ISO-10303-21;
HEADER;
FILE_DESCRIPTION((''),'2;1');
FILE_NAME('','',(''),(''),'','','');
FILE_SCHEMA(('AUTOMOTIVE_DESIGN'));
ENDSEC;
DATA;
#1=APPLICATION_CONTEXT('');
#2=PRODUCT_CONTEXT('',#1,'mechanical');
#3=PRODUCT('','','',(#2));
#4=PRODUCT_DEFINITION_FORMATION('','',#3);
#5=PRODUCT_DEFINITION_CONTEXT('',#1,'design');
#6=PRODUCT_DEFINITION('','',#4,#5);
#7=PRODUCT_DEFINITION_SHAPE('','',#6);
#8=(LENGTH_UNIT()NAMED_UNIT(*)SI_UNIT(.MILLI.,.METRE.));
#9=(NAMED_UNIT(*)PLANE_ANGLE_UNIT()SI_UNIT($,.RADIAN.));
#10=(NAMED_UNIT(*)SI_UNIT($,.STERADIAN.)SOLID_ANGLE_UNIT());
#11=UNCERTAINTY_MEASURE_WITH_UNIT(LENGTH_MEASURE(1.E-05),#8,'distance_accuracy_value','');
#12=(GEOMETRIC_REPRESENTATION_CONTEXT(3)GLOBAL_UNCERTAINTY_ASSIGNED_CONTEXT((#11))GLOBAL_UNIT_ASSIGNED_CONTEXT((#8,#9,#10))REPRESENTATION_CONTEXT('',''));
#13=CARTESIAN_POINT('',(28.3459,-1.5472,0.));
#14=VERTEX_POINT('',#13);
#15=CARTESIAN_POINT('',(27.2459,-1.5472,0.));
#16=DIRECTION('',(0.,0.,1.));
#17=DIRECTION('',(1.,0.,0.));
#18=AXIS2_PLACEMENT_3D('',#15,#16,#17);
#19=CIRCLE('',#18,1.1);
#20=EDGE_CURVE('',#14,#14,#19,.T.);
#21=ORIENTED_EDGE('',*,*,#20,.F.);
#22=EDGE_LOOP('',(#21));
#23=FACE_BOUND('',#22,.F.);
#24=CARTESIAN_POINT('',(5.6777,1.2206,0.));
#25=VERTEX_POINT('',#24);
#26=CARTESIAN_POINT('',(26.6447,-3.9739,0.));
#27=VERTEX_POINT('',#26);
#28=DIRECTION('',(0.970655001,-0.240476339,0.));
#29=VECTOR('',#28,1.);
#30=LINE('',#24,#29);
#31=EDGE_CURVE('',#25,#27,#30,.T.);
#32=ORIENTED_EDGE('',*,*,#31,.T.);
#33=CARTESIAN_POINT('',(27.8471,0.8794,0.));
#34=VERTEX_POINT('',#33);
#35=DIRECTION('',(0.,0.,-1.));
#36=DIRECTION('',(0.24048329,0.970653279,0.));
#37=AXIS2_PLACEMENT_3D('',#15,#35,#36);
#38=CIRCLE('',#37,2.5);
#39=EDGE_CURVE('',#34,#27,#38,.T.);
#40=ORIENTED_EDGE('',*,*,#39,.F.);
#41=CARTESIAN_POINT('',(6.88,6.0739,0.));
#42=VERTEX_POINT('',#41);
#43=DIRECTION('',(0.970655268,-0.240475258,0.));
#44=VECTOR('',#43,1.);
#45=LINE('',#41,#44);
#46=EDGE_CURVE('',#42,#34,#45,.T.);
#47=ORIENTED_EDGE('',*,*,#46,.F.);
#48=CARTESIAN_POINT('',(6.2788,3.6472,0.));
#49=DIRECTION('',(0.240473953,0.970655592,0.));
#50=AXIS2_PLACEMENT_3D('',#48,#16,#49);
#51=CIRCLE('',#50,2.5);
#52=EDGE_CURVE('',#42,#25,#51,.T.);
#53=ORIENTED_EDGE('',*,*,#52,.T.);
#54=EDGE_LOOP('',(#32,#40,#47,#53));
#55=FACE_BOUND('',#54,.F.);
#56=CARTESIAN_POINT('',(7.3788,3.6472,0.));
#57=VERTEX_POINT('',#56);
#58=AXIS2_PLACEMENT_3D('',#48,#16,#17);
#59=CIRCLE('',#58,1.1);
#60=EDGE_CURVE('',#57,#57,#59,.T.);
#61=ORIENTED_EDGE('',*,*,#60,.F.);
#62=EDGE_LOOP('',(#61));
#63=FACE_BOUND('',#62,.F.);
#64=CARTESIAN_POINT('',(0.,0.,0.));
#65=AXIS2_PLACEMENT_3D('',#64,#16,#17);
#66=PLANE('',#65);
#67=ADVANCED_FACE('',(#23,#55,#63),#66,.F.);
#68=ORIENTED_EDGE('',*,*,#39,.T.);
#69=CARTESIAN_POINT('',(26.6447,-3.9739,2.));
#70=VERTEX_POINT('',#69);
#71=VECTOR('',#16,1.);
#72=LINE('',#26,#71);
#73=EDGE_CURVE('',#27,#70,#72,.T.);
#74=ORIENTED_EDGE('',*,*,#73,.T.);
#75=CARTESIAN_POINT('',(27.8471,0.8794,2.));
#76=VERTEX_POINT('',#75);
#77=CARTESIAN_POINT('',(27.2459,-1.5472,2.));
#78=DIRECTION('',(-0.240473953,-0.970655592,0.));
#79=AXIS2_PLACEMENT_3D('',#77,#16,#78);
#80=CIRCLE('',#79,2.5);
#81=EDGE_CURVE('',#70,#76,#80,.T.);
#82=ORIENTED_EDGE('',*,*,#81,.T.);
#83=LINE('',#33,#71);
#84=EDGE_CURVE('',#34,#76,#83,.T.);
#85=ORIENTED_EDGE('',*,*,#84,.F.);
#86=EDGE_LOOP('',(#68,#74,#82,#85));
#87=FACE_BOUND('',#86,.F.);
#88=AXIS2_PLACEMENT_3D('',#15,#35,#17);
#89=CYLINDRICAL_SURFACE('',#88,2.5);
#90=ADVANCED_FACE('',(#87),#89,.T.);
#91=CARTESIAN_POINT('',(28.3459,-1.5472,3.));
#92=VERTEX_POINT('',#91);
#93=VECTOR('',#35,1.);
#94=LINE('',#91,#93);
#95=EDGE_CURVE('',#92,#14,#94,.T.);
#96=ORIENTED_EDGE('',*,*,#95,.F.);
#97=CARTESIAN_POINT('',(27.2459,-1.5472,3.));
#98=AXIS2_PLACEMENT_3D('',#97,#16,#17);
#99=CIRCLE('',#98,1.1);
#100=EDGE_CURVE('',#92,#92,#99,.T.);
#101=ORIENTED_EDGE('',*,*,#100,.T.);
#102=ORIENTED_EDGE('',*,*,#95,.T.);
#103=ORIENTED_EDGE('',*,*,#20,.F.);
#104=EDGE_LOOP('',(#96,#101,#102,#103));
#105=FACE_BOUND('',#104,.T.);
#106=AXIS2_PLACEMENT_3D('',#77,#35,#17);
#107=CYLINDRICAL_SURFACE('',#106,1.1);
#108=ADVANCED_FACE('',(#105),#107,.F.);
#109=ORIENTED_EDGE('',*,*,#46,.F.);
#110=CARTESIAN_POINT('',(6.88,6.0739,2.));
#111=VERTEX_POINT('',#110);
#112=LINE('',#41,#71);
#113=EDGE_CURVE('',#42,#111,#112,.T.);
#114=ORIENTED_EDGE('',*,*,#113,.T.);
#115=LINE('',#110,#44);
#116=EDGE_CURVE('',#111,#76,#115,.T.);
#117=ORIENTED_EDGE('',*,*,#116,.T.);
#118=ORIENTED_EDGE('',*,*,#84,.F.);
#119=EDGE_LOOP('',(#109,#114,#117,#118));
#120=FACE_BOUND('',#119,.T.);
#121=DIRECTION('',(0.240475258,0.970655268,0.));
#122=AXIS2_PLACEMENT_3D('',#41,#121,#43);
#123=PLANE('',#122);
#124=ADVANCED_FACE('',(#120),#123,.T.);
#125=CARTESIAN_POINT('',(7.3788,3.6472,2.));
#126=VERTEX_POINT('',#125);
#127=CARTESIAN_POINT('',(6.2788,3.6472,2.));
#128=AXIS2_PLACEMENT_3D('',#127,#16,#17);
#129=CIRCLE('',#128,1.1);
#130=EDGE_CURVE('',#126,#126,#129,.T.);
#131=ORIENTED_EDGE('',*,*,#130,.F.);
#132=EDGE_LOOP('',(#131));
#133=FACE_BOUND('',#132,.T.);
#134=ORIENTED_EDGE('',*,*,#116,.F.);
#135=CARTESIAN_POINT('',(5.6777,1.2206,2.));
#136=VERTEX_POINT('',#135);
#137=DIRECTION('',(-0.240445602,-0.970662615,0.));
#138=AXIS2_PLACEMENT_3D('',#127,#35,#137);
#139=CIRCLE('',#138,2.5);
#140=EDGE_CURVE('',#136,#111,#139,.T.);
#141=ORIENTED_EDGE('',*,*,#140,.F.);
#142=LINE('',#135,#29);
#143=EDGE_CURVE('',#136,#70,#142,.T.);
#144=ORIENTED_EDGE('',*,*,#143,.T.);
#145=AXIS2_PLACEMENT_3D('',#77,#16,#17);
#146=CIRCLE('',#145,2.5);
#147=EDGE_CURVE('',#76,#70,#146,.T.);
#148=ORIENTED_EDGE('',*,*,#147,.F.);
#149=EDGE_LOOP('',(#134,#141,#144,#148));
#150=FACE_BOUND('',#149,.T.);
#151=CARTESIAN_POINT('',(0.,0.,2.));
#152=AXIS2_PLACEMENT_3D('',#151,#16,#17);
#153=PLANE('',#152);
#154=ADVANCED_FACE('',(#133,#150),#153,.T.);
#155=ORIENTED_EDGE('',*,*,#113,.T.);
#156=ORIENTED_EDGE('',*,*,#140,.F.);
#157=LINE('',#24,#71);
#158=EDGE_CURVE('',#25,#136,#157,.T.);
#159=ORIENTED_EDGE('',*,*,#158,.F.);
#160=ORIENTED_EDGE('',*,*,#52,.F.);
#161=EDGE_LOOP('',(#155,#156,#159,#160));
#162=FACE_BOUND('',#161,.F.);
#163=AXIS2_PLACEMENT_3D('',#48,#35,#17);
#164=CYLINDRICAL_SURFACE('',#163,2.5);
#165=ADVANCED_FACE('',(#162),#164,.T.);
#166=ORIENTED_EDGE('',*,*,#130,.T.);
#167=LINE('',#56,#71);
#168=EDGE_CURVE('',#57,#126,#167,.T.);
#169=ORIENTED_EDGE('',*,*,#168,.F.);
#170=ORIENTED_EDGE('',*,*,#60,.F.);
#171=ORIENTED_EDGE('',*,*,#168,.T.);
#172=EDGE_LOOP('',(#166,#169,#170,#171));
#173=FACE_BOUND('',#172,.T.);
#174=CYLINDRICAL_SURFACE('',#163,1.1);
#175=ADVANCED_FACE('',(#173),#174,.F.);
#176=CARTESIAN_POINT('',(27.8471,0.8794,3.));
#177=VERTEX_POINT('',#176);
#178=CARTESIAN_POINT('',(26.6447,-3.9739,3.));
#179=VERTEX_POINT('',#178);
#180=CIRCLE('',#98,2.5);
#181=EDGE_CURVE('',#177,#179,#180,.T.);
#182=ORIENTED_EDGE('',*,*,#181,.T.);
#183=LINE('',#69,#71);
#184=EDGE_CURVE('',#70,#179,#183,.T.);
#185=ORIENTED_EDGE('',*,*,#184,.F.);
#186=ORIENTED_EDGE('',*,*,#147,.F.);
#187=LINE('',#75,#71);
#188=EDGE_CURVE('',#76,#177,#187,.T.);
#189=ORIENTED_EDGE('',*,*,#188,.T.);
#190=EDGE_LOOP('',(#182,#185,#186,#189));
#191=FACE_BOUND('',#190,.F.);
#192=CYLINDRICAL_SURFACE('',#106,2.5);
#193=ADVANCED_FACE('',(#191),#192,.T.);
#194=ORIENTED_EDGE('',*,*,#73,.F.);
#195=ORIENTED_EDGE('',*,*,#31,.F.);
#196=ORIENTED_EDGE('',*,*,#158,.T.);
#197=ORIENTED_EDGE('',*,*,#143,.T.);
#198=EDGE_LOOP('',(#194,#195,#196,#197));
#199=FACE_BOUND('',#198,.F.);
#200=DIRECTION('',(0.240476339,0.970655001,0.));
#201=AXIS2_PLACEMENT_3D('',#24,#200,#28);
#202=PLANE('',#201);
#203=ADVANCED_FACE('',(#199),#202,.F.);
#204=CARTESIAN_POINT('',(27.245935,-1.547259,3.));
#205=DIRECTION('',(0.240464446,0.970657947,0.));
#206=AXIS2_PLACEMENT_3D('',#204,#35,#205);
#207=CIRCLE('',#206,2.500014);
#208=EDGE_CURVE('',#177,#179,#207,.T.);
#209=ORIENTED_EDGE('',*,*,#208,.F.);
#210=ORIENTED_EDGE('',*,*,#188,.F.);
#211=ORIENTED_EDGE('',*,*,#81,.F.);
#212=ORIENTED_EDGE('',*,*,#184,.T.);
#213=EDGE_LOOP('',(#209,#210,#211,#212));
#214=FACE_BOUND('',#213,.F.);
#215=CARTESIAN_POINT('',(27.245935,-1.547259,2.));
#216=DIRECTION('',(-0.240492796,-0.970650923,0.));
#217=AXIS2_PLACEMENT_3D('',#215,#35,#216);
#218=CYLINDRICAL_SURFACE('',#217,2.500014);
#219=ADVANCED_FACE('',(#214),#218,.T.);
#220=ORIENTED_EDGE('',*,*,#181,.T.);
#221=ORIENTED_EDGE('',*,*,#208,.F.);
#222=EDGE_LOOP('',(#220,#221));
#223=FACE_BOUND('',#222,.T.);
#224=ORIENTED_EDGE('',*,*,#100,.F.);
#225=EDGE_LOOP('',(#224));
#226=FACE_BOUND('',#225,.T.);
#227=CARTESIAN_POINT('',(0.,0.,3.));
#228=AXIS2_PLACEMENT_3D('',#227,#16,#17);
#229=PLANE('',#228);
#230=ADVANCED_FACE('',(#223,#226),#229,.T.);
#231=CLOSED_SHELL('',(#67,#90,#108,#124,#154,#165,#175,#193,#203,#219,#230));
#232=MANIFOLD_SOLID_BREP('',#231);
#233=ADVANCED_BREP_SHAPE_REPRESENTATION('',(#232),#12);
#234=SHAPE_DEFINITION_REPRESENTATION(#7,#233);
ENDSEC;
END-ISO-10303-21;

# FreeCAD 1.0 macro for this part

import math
import FreeCAD as App
import Part
import Sketcher
Q = App.Units.Quantity

doc = App.newDocument("Part")
body = doc.addObject("PartDesign::Body", "Body")

sketch1 = body.newObject("Sketcher::SketchObject", "Sketch")
sketch1.AttachmentSupport = (doc.getObject("XY_Plane"), [""])
sketch1.MapMode = "FlatFace"
sketch1.addGeometry([
    Part.LineSegment(App.Vector(5.7, 1.2, 0), App.Vector(26.6, -4, 0)),
    Part.ArcOfCircle(Part.Circle(App.Vector(27.2, -1.5, 0), App.Vector(0, 0, 1), 2.5), math.radians(-104), math.radians(76)),
    Part.LineSegment(App.Vector(27.8, 0.9, 0), App.Vector(6.9, 6.1, 0)),
    Part.ArcOfCircle(Part.Circle(App.Vector(6.3, 3.6, 0), App.Vector(0, 0, 1), 2.5), math.radians(76), math.radians(256)),
    Part.Circle(App.Vector(6.3, 3.6, 0), App.Vector(0, 0, 1), 1.1),
    Part.Circle(App.Vector(27.2, -1.5, 0), App.Vector(0, 0, 1), 1.1),
], False)
sketch1.addConstraint([
    Sketcher.Constraint("Tangent", 0, 2, 1, 1),
    Sketcher.Constraint("Tangent", 1, 2, 2, 1),
    Sketcher.Constraint("Tangent", 2, 2, 3, 1),
    Sketcher.Constraint("Tangent", 3, 2, 0, 1),
    Sketcher.Constraint("Coincident", 4, 3, 3, 3),
    Sketcher.Constraint("Coincident", 5, 3, 1, 3),
    Sketcher.Constraint("Equal", 1, 3),
    Sketcher.Constraint("Equal", 4, 5),
    Sketcher.Constraint("Radius", 1, Q("2.5 mm")),
    Sketcher.Constraint("Diameter", 4, Q("2.2 mm")),
    Sketcher.Constraint("DistanceX", -1, 1, 2, 2, Q("6.88 mm")),
    Sketcher.Constraint("Distance", 2, Q("21.601 mm")),
    Sketcher.Constraint("DistanceX", -1, 1, 1, 3, Q("27.246 mm")),
    Sketcher.Constraint("DistanceY", 0, 2, -1, 1, Q("3.974 mm")),
])
pad1 = body.newObject("PartDesign::Pad", "Pad")
pad1.Profile = sketch1
pad1.Length = 2

sketch2 = body.newObject("Sketcher::SketchObject", "Sketch001")
sketch2.AttachmentSupport = (doc.getObject("XY_Plane"), [""])
sketch2.MapMode = "FlatFace"
sketch2.AttachmentOffset = App.Placement(App.Vector(0, 0, 2), App.Rotation())
sketch2.addGeometry([
    Part.ArcOfCircle(Part.Circle(App.Vector(27.2, -1.5, 0), App.Vector(0, 0, 1), 2.5), math.radians(76), math.radians(256)),
    Part.ArcOfCircle(Part.Circle(App.Vector(27.2, -1.5, 0), App.Vector(0, 0, 1), 2.5), math.radians(-104), math.radians(76)),
    Part.Circle(App.Vector(27.2, -1.5, 0), App.Vector(0, 0, 1), 1.1),
], False)
sketch2.addConstraint([
    Sketcher.Constraint("Tangent", 0, 1, 1, 2),
    Sketcher.Constraint("Coincident", 1, 1, 0, 2),
    Sketcher.Constraint("Coincident", 2, 3, 0, 3),
    Sketcher.Constraint("Radius", 0, Q("2.5 mm")),
    Sketcher.Constraint("Diameter", 2, Q("2.2 mm")),
    Sketcher.Constraint("DistanceX", -1, 1, 0, 3, Q("27.246 mm")),
    Sketcher.Constraint("DistanceX", -1, 1, 0, 1, Q("27.847 mm")),
    Sketcher.Constraint("DistanceY", 0, 3, -1, 1, Q("1.5472 mm")),
    Sketcher.Constraint("DistanceX", -1, 1, 1, 1, Q("26.6447 mm")),
])
pad2 = body.newObject("PartDesign::Pad", "Pad001")
pad2.Profile = sketch2
pad2.Length = 1

doc.recompute()
